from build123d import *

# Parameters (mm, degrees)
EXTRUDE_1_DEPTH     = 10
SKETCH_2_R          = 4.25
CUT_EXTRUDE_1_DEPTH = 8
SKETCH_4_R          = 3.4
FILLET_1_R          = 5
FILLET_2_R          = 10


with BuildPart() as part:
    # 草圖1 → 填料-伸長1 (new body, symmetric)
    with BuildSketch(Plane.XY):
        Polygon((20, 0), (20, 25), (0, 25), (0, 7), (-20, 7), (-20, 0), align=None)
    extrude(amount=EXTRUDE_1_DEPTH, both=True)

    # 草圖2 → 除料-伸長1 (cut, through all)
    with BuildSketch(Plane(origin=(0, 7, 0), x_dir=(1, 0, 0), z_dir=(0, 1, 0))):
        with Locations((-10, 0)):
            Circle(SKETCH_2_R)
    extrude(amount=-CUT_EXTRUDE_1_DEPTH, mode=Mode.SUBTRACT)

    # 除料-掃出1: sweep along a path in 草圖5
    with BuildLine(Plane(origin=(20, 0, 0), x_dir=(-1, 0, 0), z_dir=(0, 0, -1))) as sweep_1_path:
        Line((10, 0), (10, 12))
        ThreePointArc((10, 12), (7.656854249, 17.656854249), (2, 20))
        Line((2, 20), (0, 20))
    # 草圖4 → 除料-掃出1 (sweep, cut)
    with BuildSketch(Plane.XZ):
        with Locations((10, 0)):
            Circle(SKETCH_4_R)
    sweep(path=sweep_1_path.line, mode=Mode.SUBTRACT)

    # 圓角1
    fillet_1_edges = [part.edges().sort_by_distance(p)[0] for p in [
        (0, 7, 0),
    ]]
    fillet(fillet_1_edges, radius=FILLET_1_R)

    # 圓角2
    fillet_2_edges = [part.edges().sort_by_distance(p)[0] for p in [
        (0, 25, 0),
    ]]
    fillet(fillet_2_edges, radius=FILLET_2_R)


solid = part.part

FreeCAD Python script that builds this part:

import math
import FreeCAD as App
import Part
import Sketcher
from FreeCAD import Vector


def edges_at(feature, points):
    """Names of the edges that pass closest to the given points."""
    edges = feature.Shape.Edges
    near = lambda p: min(range(len(edges)), key=lambda i: edges[i].distToShape(Part.Vertex(*p))[0])
    return sorted({f"Edge{near(p) + 1}" for p in points})

doc = App.newDocument("Part")
params = doc.addObject("Spreadsheet::Sheet", "Params")
for row, (alias, value) in enumerate([
    ("sketch1_width", "20 mm"),
    ("sketch1_height", "25 mm"),
    ("sketch1_height2", "18 mm"),
    ("pad1_length", "20 mm"),
    ("sketch2_diameter", "8.5 mm"),
    ("sketch3_diameter", "6.8 mm"),
    ("sketch4_radius", "8 mm"),
    ("sketch4_width", "2 mm"),
    ("sketch4_height", "12 mm"),
    ("fillet_radius", "5 mm"),
    ("fillet2_radius", "10 mm"),
], start=1):
    params.set(f"A{row}", alias)
    params.set(f"B{row}", "=" + value)
    params.setAlias(f"B{row}", alias)

body = doc.addObject("PartDesign::Body", "Body")

# Sketch on XY plane
sketch1 = body.newObject("Sketcher::SketchObject", "Sketch")
sketch1.AttachmentSupport = (doc.getObject("XY_Plane"), [""])
sketch1.MapMode = "FlatFace"
sketch1.addGeometry([
    Part.LineSegment(Vector(20, 0, 0), Vector(20, 25, 0)),  # 0
    Part.LineSegment(Vector(20, 25, 0), Vector(0, 25, 0)),  # 1
    Part.LineSegment(Vector(0, 25, 0), Vector(0, 7, 0)),  # 2
    Part.LineSegment(Vector(0, 7, 0), Vector(-20, 7, 0)),  # 3
    Part.LineSegment(Vector(-20, 7, 0), Vector(-20, 0, 0)),  # 4
    Part.LineSegment(Vector(-20, 0, 0), Vector(20, 0, 0)),  # 5
], False)
sketch1.addConstraint([
    Sketcher.Constraint("Coincident", 0, 2, 1, 1),
    Sketcher.Constraint("Coincident", 1, 2, 2, 1),
    Sketcher.Constraint("Coincident", 2, 2, 3, 1),
    Sketcher.Constraint("Coincident", 3, 2, 4, 1),
    Sketcher.Constraint("Coincident", 4, 2, 5, 1),
    Sketcher.Constraint("Coincident", 5, 2, 0, 1),
    Sketcher.Constraint("Vertical", 0),
    Sketcher.Constraint("Horizontal", 1),
    Sketcher.Constraint("Vertical", 2),
    Sketcher.Constraint("Horizontal", 3),
    Sketcher.Constraint("Vertical", 4),
    Sketcher.Constraint("Horizontal", 5),
    Sketcher.Constraint("Symmetric", 4, 2, 5, 2, -1, 1),
    Sketcher.Constraint("PointOnObject", 1, 2, -2),
    Sketcher.Constraint("DistanceX", 1, 2, 1, 1, 20.0),
    Sketcher.Constraint("DistanceY", 0, 1, 0, 2, 25.0),
    Sketcher.Constraint("DistanceY", 2, 2, 2, 1, 18.0),
])
sketch1.setExpression("Constraints[14]", "Params.sketch1_width")
sketch1.setExpression("Constraints[15]", "Params.sketch1_height")
sketch1.setExpression("Constraints[16]", "Params.sketch1_height2")
pad1 = body.newObject("PartDesign::Pad", "Pad")
pad1.Profile = sketch1
pad1.setExpression("Length", "Params.pad1_length")
pad1.Midplane = True

# Sketch on XZ plane
sketch2 = body.newObject("Sketcher::SketchObject", "Sketch001")
sketch2.AttachmentSupport = (doc.getObject("XZ_Plane"), [""])
sketch2.MapMode = "FlatFace"
sketch2.AttachmentOffset = App.Placement(Vector(0, 0, -7), App.Rotation())
sketch2.addGeometry(Part.Circle(Vector(-10, 0, 0), Vector(0, 0, 1), 4.2), False)
sketch2.addConstraint([
    Sketcher.Constraint("PointOnObject", 0, 3, -1),
    Sketcher.Constraint("Diameter", 0, 8.5),
    Sketcher.Constraint("DistanceX", 0, 3, -1, 1, 10.0),
])
sketch2.setExpression("Constraints[1]", "Params.sketch2_diameter")
pocket1 = body.newObject("PartDesign::Pocket", "Pocket")
pocket1.Profile = sketch2
pocket1.Type = "ThroughAll"
pocket1.Reversed = True

# Sketch on XZ plane
sketch3 = body.newObject("Sketcher::SketchObject", "Sketch002")
sketch3.AttachmentSupport = (doc.getObject("XZ_Plane"), [""])
sketch3.MapMode = "FlatFace"
sketch3.addGeometry(Part.Circle(Vector(10, 0, 0), Vector(0, 0, 1), 3.4), False)
sketch3.addConstraint([
    Sketcher.Constraint("PointOnObject", 0, 3, -1),
    Sketcher.Constraint("Diameter", 0, 6.8),
    Sketcher.Constraint("DistanceX", -1, 1, 0, 3, 10.0),
])
sketch3.setExpression("Constraints[1]", "Params.sketch3_diameter")

# Sketch on XY plane
sketch4 = body.newObject("Sketcher::SketchObject", "Sketch003")
sketch4.AttachmentSupport = (doc.getObject("XY_Plane"), [""])
sketch4.MapMode = "FlatFace"
sketch4.addGeometry([
    Part.LineSegment(Vector(10, 0, 0), Vector(10, 12, 0)),
    Part.ArcOfCircle(Part.Circle(Vector(18, 12, 0), Vector(0, 0, 1), 8), math.radians(90), math.radians(180)),
    Part.LineSegment(Vector(18, 20, 0), Vector(20, 20, 0)),
], False)
sketch4.addConstraint([
    Sketcher.Constraint("Tangent", 0, 2, 1, 2),
    Sketcher.Constraint("Tangent", 1, 1, 2, 1),
    Sketcher.Constraint("Vertical", 0),
    Sketcher.Constraint("Horizontal", 2),
    Sketcher.Constraint("PointOnObject", 0, 1, -1),
    Sketcher.Constraint("Radius", 1, 8.0),
    Sketcher.Constraint("DistanceX", 2, 1, 2, 2, 2.0),
    Sketcher.Constraint("DistanceY", 0, 1, 0, 2, 12.0),
    Sketcher.Constraint("DistanceX", -1, 1, 1, 3, 18.0),
])
sketch4.setExpression("Constraints[5]", "Params.sketch4_radius")
sketch4.setExpression("Constraints[6]", "Params.sketch4_width")
sketch4.setExpression("Constraints[7]", "Params.sketch4_height")
doc.recompute()

subtractivepipe = body.newObject("PartDesign::SubtractivePipe", "SubtractivePipe")
subtractivepipe.Profile = sketch3
subtractivepipe.Spine = (sketch4, ["Edge1", "Edge2", "Edge3"])
doc.recompute()

fillet = body.newObject("PartDesign::Fillet", "Fillet")
fillet.Base = (subtractivepipe, edges_at(subtractivepipe, [(0, 7, 0)]))
fillet.setExpression("Radius", "Params.fillet_radius")
doc.recompute()

fillet2 = body.newObject("PartDesign::Fillet", "Fillet001")
fillet2.Base = (fillet, edges_at(fillet, [(0, 25, 0)]))
fillet2.setExpression("Radius", "Params.fillet2_radius")

doc.recompute()
